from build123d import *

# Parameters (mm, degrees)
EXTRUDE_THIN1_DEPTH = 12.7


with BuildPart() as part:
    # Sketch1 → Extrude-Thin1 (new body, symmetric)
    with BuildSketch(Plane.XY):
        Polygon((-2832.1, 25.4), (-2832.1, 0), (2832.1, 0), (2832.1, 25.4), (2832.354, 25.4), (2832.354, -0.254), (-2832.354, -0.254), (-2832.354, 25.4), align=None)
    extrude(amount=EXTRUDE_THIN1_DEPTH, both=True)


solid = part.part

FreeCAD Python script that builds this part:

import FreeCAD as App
import Part
import Sketcher

V = App.Vector
Q = App.Units.Quantity


def add_polygon(sketch, points):
    """Adds a closed chain of lines whose ends are joined by coincident constraints."""
    first, n = sketch.GeometryCount, len(points)
    for a, b in zip(points, points[1:] + points[:1]):
        sketch.addGeometry(Part.LineSegment(App.Vector(*a, 0), App.Vector(*b, 0)), False)
    for i in range(n):
        sketch.addConstraint(Sketcher.Constraint("Coincident", first + i, 2, first + (i + 1) % n, 1))

doc = App.newDocument("Part")
body = doc.addObject("PartDesign::Body", "Body")

# Sketch on XY plane
sketch1 = doc.addObject("Sketcher::SketchObject", "Sketch")
body.addObject(sketch1)
sketch1.AttachmentSupport = (doc.XY_Plane, [""])
sketch1.MapMode = "FlatFace"
add_polygon(sketch1, [(-2832.1, 0), (-2832.1, 25.4), (-2832.354, 25.4), (-2832.354, -0.254), (2832.354, -0.254), (2832.354, 25.4), (2832.1, 25.4), (2832.1, 0)])  # lines 0-7
sketch1.addConstraint([
    Sketcher.Constraint("Vertical", 0),
    Sketcher.Constraint("Horizontal", 1),
    Sketcher.Constraint("Vertical", 2),
    Sketcher.Constraint("Horizontal", 3),
    Sketcher.Constraint("Vertical", 4),
    Sketcher.Constraint("Horizontal", 5),
    Sketcher.Constraint("Vertical", 6),
    Sketcher.Constraint("Horizontal", 7),
    Sketcher.Constraint("Symmetric", 6, 2, 7, 2, -1, 1),
    Sketcher.Constraint("Symmetric", 1, 2, 4, 2, -2),
    Sketcher.Constraint("DistanceX", 7, 2, 7, 1, Q("223 in")),
    Sketcher.Constraint("DistanceY", 0, 1, 0, 2, Q("1 in")),
    Sketcher.Constraint("DistanceX", 1, 2, 1, 1, Q("0.01 in")),
    Sketcher.Constraint("DistanceY", 2, 2, 2, 1, Q("1.01 in")),
])
pad1 = doc.addObject("PartDesign::Pad", "Pad")
body.addObject(pad1)
pad1.Profile = sketch1
pad1.Length = Q("1 in")
pad1.Midplane = True

doc.recompute()
